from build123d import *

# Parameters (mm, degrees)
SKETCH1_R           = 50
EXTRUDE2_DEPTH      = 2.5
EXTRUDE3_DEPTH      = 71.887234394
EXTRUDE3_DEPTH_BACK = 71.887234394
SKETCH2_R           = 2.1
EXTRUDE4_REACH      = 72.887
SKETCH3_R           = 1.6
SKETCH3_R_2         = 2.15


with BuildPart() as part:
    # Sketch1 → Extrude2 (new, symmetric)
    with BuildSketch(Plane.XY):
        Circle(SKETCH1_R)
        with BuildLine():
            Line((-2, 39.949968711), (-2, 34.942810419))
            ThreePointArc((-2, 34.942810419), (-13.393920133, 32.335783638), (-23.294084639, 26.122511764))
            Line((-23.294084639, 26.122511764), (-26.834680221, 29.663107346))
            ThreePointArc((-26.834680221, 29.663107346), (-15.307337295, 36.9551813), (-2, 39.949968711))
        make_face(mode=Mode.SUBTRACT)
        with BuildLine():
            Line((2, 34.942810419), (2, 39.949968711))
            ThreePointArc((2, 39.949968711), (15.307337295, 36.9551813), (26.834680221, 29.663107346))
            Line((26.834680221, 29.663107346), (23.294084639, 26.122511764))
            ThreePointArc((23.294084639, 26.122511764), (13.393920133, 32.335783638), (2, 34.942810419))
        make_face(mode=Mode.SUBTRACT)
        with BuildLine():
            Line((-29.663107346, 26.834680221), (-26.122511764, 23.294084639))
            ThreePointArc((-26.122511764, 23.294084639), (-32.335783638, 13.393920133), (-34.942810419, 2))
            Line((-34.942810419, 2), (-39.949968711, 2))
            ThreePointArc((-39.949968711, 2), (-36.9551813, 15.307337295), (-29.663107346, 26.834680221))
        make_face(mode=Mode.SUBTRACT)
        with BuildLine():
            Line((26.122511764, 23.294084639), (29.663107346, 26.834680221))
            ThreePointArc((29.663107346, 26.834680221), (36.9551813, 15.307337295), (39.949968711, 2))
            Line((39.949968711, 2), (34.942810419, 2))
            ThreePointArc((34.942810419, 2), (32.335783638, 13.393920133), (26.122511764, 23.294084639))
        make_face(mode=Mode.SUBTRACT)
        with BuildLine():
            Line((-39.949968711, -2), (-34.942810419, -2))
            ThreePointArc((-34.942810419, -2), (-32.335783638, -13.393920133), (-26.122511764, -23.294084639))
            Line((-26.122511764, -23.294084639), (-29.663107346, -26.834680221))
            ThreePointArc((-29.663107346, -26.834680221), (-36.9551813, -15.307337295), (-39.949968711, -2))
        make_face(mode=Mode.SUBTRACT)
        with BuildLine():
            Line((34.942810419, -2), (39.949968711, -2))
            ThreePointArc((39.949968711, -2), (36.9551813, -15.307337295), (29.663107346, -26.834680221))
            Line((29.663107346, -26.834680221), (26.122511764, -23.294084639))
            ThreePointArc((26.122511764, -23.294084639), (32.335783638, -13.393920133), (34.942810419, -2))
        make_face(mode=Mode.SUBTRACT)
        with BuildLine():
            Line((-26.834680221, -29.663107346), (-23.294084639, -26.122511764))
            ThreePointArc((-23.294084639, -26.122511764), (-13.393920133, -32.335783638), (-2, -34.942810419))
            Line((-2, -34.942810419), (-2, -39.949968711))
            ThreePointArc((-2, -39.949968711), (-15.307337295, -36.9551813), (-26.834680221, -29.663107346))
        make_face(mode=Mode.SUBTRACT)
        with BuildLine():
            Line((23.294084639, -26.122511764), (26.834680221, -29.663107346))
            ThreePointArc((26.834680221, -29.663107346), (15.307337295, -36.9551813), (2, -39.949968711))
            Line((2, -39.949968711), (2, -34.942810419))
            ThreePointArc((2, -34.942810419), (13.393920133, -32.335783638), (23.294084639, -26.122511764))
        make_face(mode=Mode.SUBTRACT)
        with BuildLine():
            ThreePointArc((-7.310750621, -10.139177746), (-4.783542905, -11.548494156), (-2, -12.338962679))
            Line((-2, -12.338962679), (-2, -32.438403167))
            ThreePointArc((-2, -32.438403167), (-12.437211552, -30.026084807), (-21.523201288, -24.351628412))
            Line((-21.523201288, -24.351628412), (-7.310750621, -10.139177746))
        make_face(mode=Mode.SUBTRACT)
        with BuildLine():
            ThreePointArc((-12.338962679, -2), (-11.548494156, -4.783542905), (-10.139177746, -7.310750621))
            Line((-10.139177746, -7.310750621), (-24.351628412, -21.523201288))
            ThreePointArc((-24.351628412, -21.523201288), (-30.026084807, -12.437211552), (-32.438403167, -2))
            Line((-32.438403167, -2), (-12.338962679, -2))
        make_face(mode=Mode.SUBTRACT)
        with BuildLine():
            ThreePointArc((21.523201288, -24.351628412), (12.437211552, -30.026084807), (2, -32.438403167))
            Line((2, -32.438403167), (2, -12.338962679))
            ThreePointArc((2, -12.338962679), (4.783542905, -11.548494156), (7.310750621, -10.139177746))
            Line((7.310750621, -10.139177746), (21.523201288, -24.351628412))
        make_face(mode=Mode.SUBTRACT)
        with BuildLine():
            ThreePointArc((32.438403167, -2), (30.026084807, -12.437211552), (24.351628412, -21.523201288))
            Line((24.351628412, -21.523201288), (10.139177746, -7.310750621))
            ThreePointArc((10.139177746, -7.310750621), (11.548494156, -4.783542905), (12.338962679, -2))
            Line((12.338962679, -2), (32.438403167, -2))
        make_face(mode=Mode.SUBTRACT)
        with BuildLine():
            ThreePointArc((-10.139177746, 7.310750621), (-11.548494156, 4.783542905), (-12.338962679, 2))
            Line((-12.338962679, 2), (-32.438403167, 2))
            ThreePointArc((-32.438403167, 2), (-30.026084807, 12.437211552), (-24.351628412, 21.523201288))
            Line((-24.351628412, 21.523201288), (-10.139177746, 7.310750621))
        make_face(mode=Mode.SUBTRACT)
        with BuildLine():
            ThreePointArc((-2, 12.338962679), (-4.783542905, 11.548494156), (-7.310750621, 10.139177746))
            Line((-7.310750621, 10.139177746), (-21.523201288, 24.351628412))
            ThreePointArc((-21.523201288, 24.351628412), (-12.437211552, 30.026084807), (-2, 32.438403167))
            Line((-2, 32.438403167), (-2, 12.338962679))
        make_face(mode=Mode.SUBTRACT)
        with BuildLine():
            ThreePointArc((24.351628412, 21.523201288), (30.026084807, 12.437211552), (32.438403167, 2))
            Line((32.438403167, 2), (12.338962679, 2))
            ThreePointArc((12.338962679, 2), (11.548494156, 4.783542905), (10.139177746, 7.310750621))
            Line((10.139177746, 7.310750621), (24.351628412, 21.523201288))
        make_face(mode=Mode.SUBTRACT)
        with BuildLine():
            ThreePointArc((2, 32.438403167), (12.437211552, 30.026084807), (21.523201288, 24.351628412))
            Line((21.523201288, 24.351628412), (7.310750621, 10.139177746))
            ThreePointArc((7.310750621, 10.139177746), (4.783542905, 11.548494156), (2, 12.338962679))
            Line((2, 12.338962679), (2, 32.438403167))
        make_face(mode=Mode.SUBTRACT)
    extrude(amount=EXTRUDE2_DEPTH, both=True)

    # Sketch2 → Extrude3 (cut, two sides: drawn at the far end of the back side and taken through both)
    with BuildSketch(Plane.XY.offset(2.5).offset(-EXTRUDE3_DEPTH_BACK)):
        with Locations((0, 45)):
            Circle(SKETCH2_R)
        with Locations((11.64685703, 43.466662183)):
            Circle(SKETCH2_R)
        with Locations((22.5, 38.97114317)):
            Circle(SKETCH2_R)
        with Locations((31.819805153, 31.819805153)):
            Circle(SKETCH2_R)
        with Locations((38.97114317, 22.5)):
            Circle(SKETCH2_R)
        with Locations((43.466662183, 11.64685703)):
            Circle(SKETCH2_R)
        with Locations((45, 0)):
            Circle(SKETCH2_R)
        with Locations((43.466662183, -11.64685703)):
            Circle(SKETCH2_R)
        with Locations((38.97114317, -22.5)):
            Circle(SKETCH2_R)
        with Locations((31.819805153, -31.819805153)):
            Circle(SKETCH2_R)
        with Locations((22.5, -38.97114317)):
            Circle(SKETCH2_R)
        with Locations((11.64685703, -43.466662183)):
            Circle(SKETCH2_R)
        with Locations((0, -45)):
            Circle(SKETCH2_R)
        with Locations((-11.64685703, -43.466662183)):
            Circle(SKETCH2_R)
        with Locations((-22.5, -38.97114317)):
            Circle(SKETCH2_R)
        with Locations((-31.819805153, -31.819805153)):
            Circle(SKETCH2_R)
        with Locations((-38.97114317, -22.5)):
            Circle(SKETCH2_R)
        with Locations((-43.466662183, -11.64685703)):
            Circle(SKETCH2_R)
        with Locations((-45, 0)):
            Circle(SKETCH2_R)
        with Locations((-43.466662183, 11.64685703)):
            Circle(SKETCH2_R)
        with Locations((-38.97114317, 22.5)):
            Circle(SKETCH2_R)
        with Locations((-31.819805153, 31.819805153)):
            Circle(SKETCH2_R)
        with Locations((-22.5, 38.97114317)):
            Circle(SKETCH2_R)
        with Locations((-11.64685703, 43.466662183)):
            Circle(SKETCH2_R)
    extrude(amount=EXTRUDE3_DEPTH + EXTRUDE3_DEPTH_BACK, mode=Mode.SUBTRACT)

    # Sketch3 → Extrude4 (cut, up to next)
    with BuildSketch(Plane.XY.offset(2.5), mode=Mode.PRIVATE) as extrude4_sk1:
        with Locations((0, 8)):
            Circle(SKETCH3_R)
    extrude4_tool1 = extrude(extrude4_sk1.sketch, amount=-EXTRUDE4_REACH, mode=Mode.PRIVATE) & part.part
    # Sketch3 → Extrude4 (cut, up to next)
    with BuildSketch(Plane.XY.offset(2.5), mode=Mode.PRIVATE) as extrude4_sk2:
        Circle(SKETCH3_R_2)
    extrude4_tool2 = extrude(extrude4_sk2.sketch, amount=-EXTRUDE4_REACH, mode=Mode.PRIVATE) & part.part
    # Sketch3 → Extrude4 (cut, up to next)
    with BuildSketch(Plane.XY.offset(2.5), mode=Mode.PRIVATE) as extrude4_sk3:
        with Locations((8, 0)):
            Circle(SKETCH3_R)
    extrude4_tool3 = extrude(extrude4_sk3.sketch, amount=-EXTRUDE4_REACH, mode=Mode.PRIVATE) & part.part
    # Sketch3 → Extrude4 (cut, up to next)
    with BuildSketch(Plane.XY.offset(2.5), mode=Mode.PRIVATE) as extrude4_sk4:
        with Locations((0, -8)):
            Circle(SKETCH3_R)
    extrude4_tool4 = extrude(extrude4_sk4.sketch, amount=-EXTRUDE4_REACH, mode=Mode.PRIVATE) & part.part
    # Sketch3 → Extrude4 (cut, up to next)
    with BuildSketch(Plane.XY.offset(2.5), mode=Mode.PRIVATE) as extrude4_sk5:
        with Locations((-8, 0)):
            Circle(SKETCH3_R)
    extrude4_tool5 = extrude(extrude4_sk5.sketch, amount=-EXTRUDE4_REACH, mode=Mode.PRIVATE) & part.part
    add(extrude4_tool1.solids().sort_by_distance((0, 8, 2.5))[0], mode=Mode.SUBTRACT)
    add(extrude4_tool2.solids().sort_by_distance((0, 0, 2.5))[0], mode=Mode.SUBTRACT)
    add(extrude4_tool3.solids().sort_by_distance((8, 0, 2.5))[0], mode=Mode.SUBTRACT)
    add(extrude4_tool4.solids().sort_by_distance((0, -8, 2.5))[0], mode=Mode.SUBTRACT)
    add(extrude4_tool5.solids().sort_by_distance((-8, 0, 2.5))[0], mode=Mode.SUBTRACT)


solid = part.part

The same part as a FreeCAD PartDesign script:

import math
import FreeCAD as App
import Part
import Sketcher

V = App.Vector

doc = App.newDocument("Part")
body = doc.addObject("PartDesign::Body", "Body")

# Sketch on XY plane
sketch1 = body.newObject("Sketcher::SketchObject", "Sketch")
sketch1.AttachmentSupport = (doc.getObject("XY_Plane"), [""])
sketch1.MapMode = "FlatFace"
sketch1.addGeometry([
    Part.Circle(V(0, 0, 0), V(0, 0, 1), 50),  # 0
    Part.ArcOfCircle(Part.Circle(V(0, 0, 0), V(0, 0, 1), 40), math.radians(-132), math.radians(-93)),  # 1
    Part.LineSegment(V(-27, -30, 0), V(-23, -26, 0)),  # 2
    Part.ArcOfCircle(Part.Circle(V(0, 0, 0), V(0, 0, 1), 35), math.radians(-132), math.radians(-93)),  # 3
    Part.LineSegment(V(-2, -35, 0), V(-2, -40, 0)),  # 4
    Part.LineSegment(V(-22, -24, 0), V(-7, -10, 0)),  # 5
    Part.ArcOfCircle(Part.Circle(V(0, 0, 0), V(0, 0, 1), 13), math.radians(-126), math.radians(-99)),  # 6
    Part.LineSegment(V(-2, -12, 0), V(-2, -32, 0)),  # 7
    Part.ArcOfCircle(Part.Circle(V(0, 0, 0), V(0, 0, 1), 32), math.radians(-131), math.radians(-94)),  # 8
    Part.ArcOfCircle(Part.Circle(V(0, 0, 0), V(0, 0, 1), 40), math.radians(-177), math.radians(-138)),  # 9
    Part.LineSegment(V(-40, -2, 0), V(-35, -2, 0)),  # 10
    Part.ArcOfCircle(Part.Circle(V(0, 0, 0), V(0, 0, 1), 35), math.radians(-177), math.radians(-138)),  # 11
    Part.LineSegment(V(-26, -23, 0), V(-30, -27, 0)),  # 12
    Part.LineSegment(V(-32, -2, 0), V(-12, -2, 0)),  # 13
    Part.ArcOfCircle(Part.Circle(V(0, 0, 0), V(0, 0, 1), 13), math.radians(-171), math.radians(-144)),  # 14
    Part.LineSegment(V(-10, -7, 0), V(-24, -22, 0)),  # 15
    Part.ArcOfCircle(Part.Circle(V(0, 0, 0), V(0, 0, 1), 32), math.radians(-176), math.radians(-139)),  # 16
    Part.ArcOfCircle(Part.Circle(V(0, 0, 0), V(0, 0, 1), 35), math.radians(-87), math.radians(-48)),  # 17
    Part.LineSegment(V(23, -26, 0), V(27, -30, 0)),  # 18
    Part.ArcOfCircle(Part.Circle(V(0, 0, 0), V(0, 0, 1), 40), math.radians(-87), math.radians(-48)),  # 19
    Part.LineSegment(V(2, -40, 0), V(2, -35, 0)),  # 20
    Part.LineSegment(V(7, -10, 0), V(22, -24, 0)),  # 21
    Part.ArcOfCircle(Part.Circle(V(0, 0, 0), V(0, 0, 1), 32), math.radians(-86), math.radians(-49)),  # 22
    Part.LineSegment(V(2, -32, 0), V(2, -12, 0)),  # 23
    Part.ArcOfCircle(Part.Circle(V(0, 0, 0), V(0, 0, 1), 13), math.radians(-81), math.radians(-54)),  # 24
    Part.LineSegment(V(12, -2, 0), V(32, -2, 0)),  # 25
    Part.ArcOfCircle(Part.Circle(V(0, 0, 0), V(0, 0, 1), 32), math.radians(-41), math.radians(-4)),  # 26
    Part.LineSegment(V(24, -22, 0), V(10, -7, 0)),  # 27
    Part.ArcOfCircle(Part.Circle(V(0, 0, 0), V(0, 0, 1), 13), math.radians(-36), math.radians(-9)),  # 28
    Part.ArcOfCircle(Part.Circle(V(0, 0, 0), V(0, 0, 1), 35), math.radians(-42), math.radians(-3)),  # 29
    Part.LineSegment(V(35, -2, 0), V(40, -2, 0)),  # 30
    Part.ArcOfCircle(Part.Circle(V(0, 0, 0), V(0, 0, 1), 40), math.radians(-42), math.radians(-3)),  # 31
    Part.LineSegment(V(30, -27, 0), V(26, -23, 0)),  # 32
    Part.ArcOfCircle(Part.Circle(V(0, 0, 0), V(0, 0, 1), 40), math.radians(138), math.radians(177)),  # 33
    Part.LineSegment(V(-30, 27, 0), V(-26, 23, 0)),  # 34
    Part.ArcOfCircle(Part.Circle(V(0, 0, 0), V(0, 0, 1), 35), math.radians(138), math.radians(177)),  # 35
    Part.LineSegment(V(-35, 2, 0), V(-40, 2, 0)),  # 36
    Part.LineSegment(V(-24, 22, 0), V(-10, 7, 0)),  # 37
    Part.ArcOfCircle(Part.Circle(V(0, 0, 0), V(0, 0, 1), 13), math.radians(144), math.radians(171)),  # 38
    Part.LineSegment(V(-12, 2, 0), V(-32, 2, 0)),  # 39
    Part.ArcOfCircle(Part.Circle(V(0, 0, 0), V(0, 0, 1), 32), math.radians(139), math.radians(176)),  # 40
    Part.LineSegment(V(-2, 32, 0), V(-2, 12, 0)),  # 41
    Part.ArcOfCircle(Part.Circle(V(0, 0, 0), V(0, 0, 1), 13), math.radians(99), math.radians(126)),  # 42
    Part.LineSegment(V(-7, 10, 0), V(-22, 24, 0)),  # 43
    Part.ArcOfCircle(Part.Circle(V(0, 0, 0), V(0, 0, 1), 32), math.radians(94), math.radians(131)),  # 44
    Part.ArcOfCircle(Part.Circle(V(0, 0, 0), V(0, 0, 1), 40), math.radians(93), math.radians(132)),  # 45
    Part.LineSegment(V(-2, 40, 0), V(-2, 35, 0)),  # 46
    Part.ArcOfCircle(Part.Circle(V(0, 0, 0), V(0, 0, 1), 35), math.radians(93), math.radians(132)),  # 47
    Part.LineSegment(V(-23, 26, 0), V(-27, 30, 0)),  # 48
    Part.LineSegment(V(10, 7, 0), V(24, 22, 0)),  # 49
    Part.ArcOfCircle(Part.Circle(V(0, 0, 0), V(0, 0, 1), 32), math.radians(4), math.radians(41)),  # 50
    Part.LineSegment(V(32, 2, 0), V(12, 2, 0)),  # 51
    Part.ArcOfCircle(Part.Circle(V(0, 0, 0), V(0, 0, 1), 13), math.radians(9), math.radians(36)),  # 52
    Part.ArcOfCircle(Part.Circle(V(0, 0, 0), V(0, 0, 1), 35), math.radians(3), math.radians(42)),  # 53
    Part.LineSegment(V(26, 23, 0), V(30, 27, 0)),  # 54
    Part.ArcOfCircle(Part.Circle(V(0, 0, 0), V(0, 0, 1), 40), math.radians(3), math.radians(42)),  # 55
    Part.LineSegment(V(40, 2, 0), V(35, 2, 0)),  # 56
    Part.LineSegment(V(2, 12, 0), V(2, 32, 0)),  # 57
    Part.ArcOfCircle(Part.Circle(V(0, 0, 0), V(0, 0, 1), 32), math.radians(49), math.radians(86)),  # 58
    Part.LineSegment(V(22, 24, 0), V(7, 10, 0)),  # 59
    Part.ArcOfCircle(Part.Circle(V(0, 0, 0), V(0, 0, 1), 13), math.radians(54), math.radians(81)),  # 60
    Part.ArcOfCircle(Part.Circle(V(0, 0, 0), V(0, 0, 1), 35), math.radians(48), math.radians(87)),  # 61
    Part.LineSegment(V(2, 35, 0), V(2, 40, 0)),  # 62
    Part.ArcOfCircle(Part.Circle(V(0, 0, 0), V(0, 0, 1), 40), math.radians(48), math.radians(87)),  # 63
    Part.LineSegment(V(27, 30, 0), V(23, 26, 0)),  # 64
], False)
sketch1.addConstraint([
    Sketcher.Constraint("Coincident", 1, 1, 2, 1),
    Sketcher.Constraint("Coincident", 2, 2, 3, 1),
    Sketcher.Constraint("Coincident", 3, 2, 4, 1),
    Sketcher.Constraint("Coincident", 4, 2, 1, 2),
    Sketcher.Constraint("Coincident", 5, 2, 6, 1),
    Sketcher.Constraint("Coincident", 6, 2, 7, 1),
    Sketcher.Constraint("Coincident", 7, 2, 8, 2),
    Sketcher.Constraint("Coincident", 8, 1, 5, 1),
    Sketcher.Constraint("Coincident", 9, 1, 10, 1),
    Sketcher.Constraint("Coincident", 10, 2, 11, 1),
    Sketcher.Constraint("Coincident", 11, 2, 12, 1),
    Sketcher.Constraint("Coincident", 12, 2, 9, 2),
    Sketcher.Constraint("Coincident", 13, 2, 14, 1),
    Sketcher.Constraint("Coincident", 14, 2, 15, 1),
    Sketcher.Constraint("Coincident", 15, 2, 16, 2),
    Sketcher.Constraint("Coincident", 16, 1, 13, 1),
    Sketcher.Constraint("Coincident", 17, 2, 18, 1),
    Sketcher.Constraint("Coincident", 18, 2, 19, 2),
    Sketcher.Constraint("Coincident", 19, 1, 20, 1),
    Sketcher.Constraint("Coincident", 20, 2, 17, 1),
    Sketcher.Constraint("Coincident", 21, 2, 22, 2),
    Sketcher.Constraint("Coincident", 22, 1, 23, 1),
    Sketcher.Constraint("Coincident", 23, 2, 24, 1),
    Sketcher.Constraint("Coincident", 24, 2, 21, 1),
    Sketcher.Constraint("Coincident", 25, 2, 26, 2),
    Sketcher.Constraint("Coincident", 26, 1, 27, 1),
    Sketcher.Constraint("Coincident", 27, 2, 28, 1),
    Sketcher.Constraint("Coincident", 28, 2, 25, 1),
    Sketcher.Constraint("Coincident", 29, 2, 30, 1),
    Sketcher.Constraint("Coincident", 30, 2, 31, 2),
    Sketcher.Constraint("Coincident", 31, 1, 32, 1),
    Sketcher.Constraint("Coincident", 32, 2, 29, 1),
    Sketcher.Constraint("Coincident", 33, 1, 34, 1),
    Sketcher.Constraint("Coincident", 34, 2, 35, 1),
    Sketcher.Constraint("Coincident", 35, 2, 36, 1),
    Sketcher.Constraint("Coincident", 36, 2, 33, 2),
    Sketcher.Constraint("Coincident", 37, 2, 38, 1),
    Sketcher.Constraint("Coincident", 38, 2, 39, 1),
    Sketcher.Constraint("Coincident", 39, 2, 40, 2),
    Sketcher.Constraint("Coincident", 40, 1, 37, 1),
    Sketcher.Constraint("Coincident", 41, 2, 42, 1),
    Sketcher.Constraint("Coincident", 42, 2, 43, 1),
    Sketcher.Constraint("Coincident", 43, 2, 44, 2),
    Sketcher.Constraint("Coincident", 44, 1, 41, 1),
    Sketcher.Constraint("Coincident", 45, 1, 46, 1),
    Sketcher.Constraint("Coincident", 46, 2, 47, 1),
    Sketcher.Constraint("Coincident", 47, 2, 48, 1),
    Sketcher.Constraint("Coincident", 48, 2, 45, 2),
    Sketcher.Constraint("Coincident", 49, 2, 50, 2),
    Sketcher.Constraint("Coincident", 50, 1, 51, 1),
    Sketcher.Constraint("Coincident", 51, 2, 52, 1),
    Sketcher.Constraint("Coincident", 52, 2, 49, 1),
    Sketcher.Constraint("Coincident", 53, 2, 54, 1),
    Sketcher.Constraint("Coincident", 54, 2, 55, 2),
    Sketcher.Constraint("Coincident", 55, 1, 56, 1),
    Sketcher.Constraint("Coincident", 56, 2, 53, 1),
    Sketcher.Constraint("Coincident", 57, 2, 58, 2),
    Sketcher.Constraint("Coincident", 58, 1, 59, 1),
    Sketcher.Constraint("Coincident", 59, 2, 60, 1),
    Sketcher.Constraint("Coincident", 60, 2, 57, 1),
    Sketcher.Constraint("Coincident", 61, 2, 62, 1),
    Sketcher.Constraint("Coincident", 62, 2, 63, 2),
    Sketcher.Constraint("Coincident", 63, 1, 64, 1),
    Sketcher.Constraint("Coincident", 64, 2, 61, 1),
    Sketcher.Constraint("Vertical", 4),
    Sketcher.Constraint("Vertical", 7),
    Sketcher.Constraint("Horizontal", 10),
    Sketcher.Constraint("Horizontal", 13),
    Sketcher.Constraint("Vertical", 20),
    Sketcher.Constraint("Vertical", 23),
    Sketcher.Constraint("Horizontal", 25),
    Sketcher.Constraint("Horizontal", 30),
    Sketcher.Constraint("Horizontal", 36),
    Sketcher.Constraint("Horizontal", 39),
    Sketcher.Constraint("Vertical", 41),
    Sketcher.Constraint("Vertical", 46),
    Sketcher.Constraint("Horizontal", 51),
    Sketcher.Constraint("Horizontal", 56),
    Sketcher.Constraint("Vertical", 57),
    Sketcher.Constraint("Vertical", 62),
    Sketcher.Constraint("Coincident", 0, 3, -1, 1),
    Sketcher.Constraint("Coincident", 1, 3, -1, 1),
    Sketcher.Constraint("Coincident", 3, 3, -1, 1),
    Sketcher.Constraint("Coincident", 6, 3, -1, 1),
    Sketcher.Constraint("Coincident", 8, 3, -1, 1),
    Sketcher.Constraint("Coincident", 9, 3, -1, 1),
    Sketcher.Constraint("Coincident", 11, 3, -1, 1),
    Sketcher.Constraint("Coincident", 14, 3, -1, 1),
    Sketcher.Constraint("Coincident", 16, 3, -1, 1),
    Sketcher.Constraint("Coincident", 17, 3, -1, 1),
    Sketcher.Constraint("Coincident", 19, 3, -1, 1),
    Sketcher.Constraint("Coincident", 22, 3, -1, 1),
    Sketcher.Constraint("Coincident", 24, 3, -1, 1),
    Sketcher.Constraint("Coincident", 26, 3, -1, 1),
    Sketcher.Constraint("Coincident", 28, 3, -1, 1),
    Sketcher.Constraint("Coincident", 29, 3, -1, 1),
    Sketcher.Constraint("Coincident", 31, 3, -1, 1),
    Sketcher.Constraint("Coincident", 33, 3, -1, 1),
    Sketcher.Constraint("Coincident", 35, 3, -1, 1),
    Sketcher.Constraint("Coincident", 38, 3, -1, 1),
    Sketcher.Constraint("Coincident", 40, 3, -1, 1),
    Sketcher.Constraint("Coincident", 42, 3, -1, 1),
    Sketcher.Constraint("Coincident", 44, 3, -1, 1),
    Sketcher.Constraint("Coincident", 45, 3, -1, 1),
    Sketcher.Constraint("Coincident", 47, 3, -1, 1),
    Sketcher.Constraint("Coincident", 50, 3, -1, 1),
    Sketcher.Constraint("Coincident", 52, 3, -1, 1),
    Sketcher.Constraint("Coincident", 53, 3, -1, 1),
    Sketcher.Constraint("Coincident", 55, 3, -1, 1),
    Sketcher.Constraint("Coincident", 58, 3, -1, 1),
    Sketcher.Constraint("Coincident", 60, 3, -1, 1),
    Sketcher.Constraint("Coincident", 61, 3, -1, 1),
    Sketcher.Constraint("Coincident", 63, 3, -1, 1),
    Sketcher.Constraint("Equal", 1, 9),
    Sketcher.Constraint("Equal", 3, 11),
    Sketcher.Constraint("Equal", 6, 14),
    Sketcher.Constraint("Equal", 8, 16),
    Sketcher.Constraint("Equal", 11, 17),
    Sketcher.Constraint("Equal", 9, 19),
    Sketcher.Constraint("Equal", 16, 22),
    Sketcher.Constraint("Equal", 14, 24),
    Sketcher.Constraint("Equal", 22, 26),
    Sketcher.Constraint("Equal", 24, 28),
    Sketcher.Constraint("Equal", 17, 29),
    Sketcher.Constraint("Equal", 19, 31),
    Sketcher.Constraint("Equal", 31, 33),
    Sketcher.Constraint("Equal", 29, 35),
    Sketcher.Constraint("Equal", 28, 38),
    Sketcher.Constraint("Equal", 26, 40),
    Sketcher.Constraint("Equal", 38, 42),
    Sketcher.Constraint("Equal", 40, 44),
    Sketcher.Constraint("Equal", 33, 45),
    Sketcher.Constraint("Equal", 35, 47),
    Sketcher.Constraint("Equal", 44, 50),
    Sketcher.Constraint("Equal", 42, 52),
    Sketcher.Constraint("Equal", 47, 53),
    Sketcher.Constraint("Equal", 45, 55),
    Sketcher.Constraint("Equal", 50, 58),
    Sketcher.Constraint("Equal", 52, 60),
    Sketcher.Constraint("Equal", 53, 61),
    Sketcher.Constraint("Equal", 55, 63),
    Sketcher.Constraint("Parallel", 2, 5),
    Sketcher.Constraint("Parallel", 5, 12),
    Sketcher.Constraint("Parallel", 12, 15),
    Sketcher.Constraint("Perpendicular", 15, 18),
    Sketcher.Constraint("Parallel", 18, 21),
    Sketcher.Constraint("Parallel", 21, 27),
    Sketcher.Constraint("Parallel", 27, 32),
    Sketcher.Constraint("Parallel", 32, 34),
    Sketcher.Constraint("Parallel", 34, 37),
    Sketcher.Constraint("Parallel", 37, 43),
    Sketcher.Constraint("Parallel", 43, 48),
    Sketcher.Constraint("Perpendicular", 48, 49),
    Sketcher.Constraint("Parallel", 49, 54),
    Sketcher.Constraint("Parallel", 54, 59),
    Sketcher.Constraint("Parallel", 59, 64),
    Sketcher.Constraint("Horizontal", 10, 2, 13, 2),
    Sketcher.Constraint("Horizontal", 2, 2, 17, 2),
    Sketcher.Constraint("Horizontal", 1, 1, 18, 2),
    Sketcher.Constraint("Horizontal", 4, 2, 19, 1),
    Sketcher.Constraint("Horizontal", 8, 1, 21, 2),
    Sketcher.Constraint("Horizontal", 7, 2, 22, 1),
    Sketcher.Constraint("Horizontal", 16, 1, 25, 2),
    Sketcher.Constraint("Horizontal", 15, 2, 26, 1),
    Sketcher.Constraint("Horizontal", 28, 2, 29, 2),
    Sketcher.Constraint("Horizontal", 12, 2, 31, 1),
    Sketcher.Constraint("Horizontal", 36, 2, 38, 2),
    Sketcher.Constraint("Horizontal", 40, 1, 49, 2),
    Sketcher.Constraint("Horizontal", 39, 2, 50, 1),
    Sketcher.Constraint("Horizontal", 34, 2, 53, 2),
    Sketcher.Constraint("Horizontal", 51, 2, 55, 1),
    Sketcher.Constraint("Horizontal", 44, 1, 57, 2),
    Sketcher.Constraint("Horizontal", 43, 2, 58, 1),
    Sketcher.Constraint("Horizontal", 46, 2, 61, 2),
    Sketcher.Constraint("Horizontal", 48, 2, 63, 1),
    Sketcher.Constraint("Vertical", 4, 2, 6, 2),
    Sketcher.Constraint("Vertical", 12, 2, 33, 1),
    Sketcher.Constraint("Vertical", 10, 2, 35, 2),
    Sketcher.Constraint("Vertical", 14, 2, 37, 2),
    Sketcher.Constraint("Vertical", 7, 2, 41, 2),
    Sketcher.Constraint("Vertical", 5, 2, 42, 2),
    Sketcher.Constraint("Vertical", 44, 1, 45, 1),
    Sketcher.Constraint("Vertical", 2, 2, 47, 2),
    Sketcher.Constraint("Equal", 51, 7),
    Sketcher.Constraint("Equal", 5, 15),
    Sketcher.Constraint("Diameter", 0, 100.0),
    Sketcher.Constraint("Radius", 1, 40.0),
    Sketcher.Constraint("Radius", 3, 35.0),
    Sketcher.Constraint("Radius", 6, 12.5),
    Sketcher.Constraint("Radius", 8, 32.5),
    Sketcher.Constraint("DistanceX", 3, 2, -1, 1, 2.0),
    Sketcher.Constraint("DistanceX", 8, 1, -1, 1, 21.523201),
    Sketcher.Constraint("DistanceX", 1, 1, -1, 1, 26.83468),
    Sketcher.Constraint("DistanceX", 11, 2, -1, 1, 26.122512),
])
pad1 = body.newObject("PartDesign::Pad", "Pad")
pad1.Profile = sketch1
pad1.Length = 5
pad1.Midplane = True

# Sketch on XY plane
sketch2 = body.newObject("Sketcher::SketchObject", "Sketch001")
sketch2.AttachmentSupport = (doc.getObject("XY_Plane"), [""])
sketch2.MapMode = "FlatFace"
sketch2.AttachmentOffset = App.Placement(V(0, 0, 2.5), App.Rotation())
sketch2.addGeometry([
    Part.Circle(V(0, 45, 0), V(0, 0, 1), 2.1),  # 0
    Part.Circle(V(11.6, 43.5, 0), V(0, 0, 1), 2.1),  # 1
    Part.Circle(V(22.5, 39, 0), V(0, 0, 1), 2.1),  # 2
    Part.Circle(V(31.8, 31.8, 0), V(0, 0, 1), 2.1),  # 3
    Part.Circle(V(39, 22.5, 0), V(0, 0, 1), 2.1),  # 4
    Part.Circle(V(43.5, 11.6, 0), V(0, 0, 1), 2.1),  # 5
    Part.Circle(V(45, 0, 0), V(0, 0, 1), 2.1),  # 6
    Part.Circle(V(43.5, -11.6, 0), V(0, 0, 1), 2.1),  # 7
    Part.Circle(V(39, -22.5, 0), V(0, 0, 1), 2.1),  # 8
    Part.Circle(V(31.8, -31.8, 0), V(0, 0, 1), 2.1),  # 9
    Part.Circle(V(22.5, -39, 0), V(0, 0, 1), 2.1),  # 10
    Part.Circle(V(11.6, -43.5, 0), V(0, 0, 1), 2.1),  # 11
    Part.Circle(V(0, -45, 0), V(0, 0, 1), 2.1),  # 12
    Part.Circle(V(-11.6, -43.5, 0), V(0, 0, 1), 2.1),  # 13
    Part.Circle(V(-22.5, -39, 0), V(0, 0, 1), 2.1),  # 14
    Part.Circle(V(-31.8, -31.8, 0), V(0, 0, 1), 2.1),  # 15
    Part.Circle(V(-39, -22.5, 0), V(0, 0, 1), 2.1),  # 16
    Part.Circle(V(-43.5, -11.6, 0), V(0, 0, 1), 2.1),  # 17
    Part.Circle(V(-45, 0, 0), V(0, 0, 1), 2.1),  # 18
    Part.Circle(V(-43.5, 11.6, 0), V(0, 0, 1), 2.1),  # 19
    Part.Circle(V(-39, 22.5, 0), V(0, 0, 1), 2.1),  # 20
    Part.Circle(V(-31.8, 31.8, 0), V(0, 0, 1), 2.1),  # 21
    Part.Circle(V(-22.5, 39, 0), V(0, 0, 1), 2.1),  # 22
    Part.Circle(V(-11.6, 43.5, 0), V(0, 0, 1), 2.1),  # 23
], False)
sketch2.addConstraint([
    Sketcher.Constraint("Equal", 0, 1),
    Sketcher.Constraint("Equal", 1, 2),
    Sketcher.Constraint("Equal", 2, 3),
    Sketcher.Constraint("Equal", 3, 4),
    Sketcher.Constraint("Equal", 4, 5),
    Sketcher.Constraint("Equal", 5, 6),
    Sketcher.Constraint("Equal", 6, 7),
    Sketcher.Constraint("Equal", 7, 8),
    Sketcher.Constraint("Equal", 8, 9),
    Sketcher.Constraint("Equal", 9, 10),
    Sketcher.Constraint("Equal", 10, 11),
    Sketcher.Constraint("Equal", 11, 12),
    Sketcher.Constraint("Equal", 12, 13),
    Sketcher.Constraint("Equal", 13, 14),
    Sketcher.Constraint("Equal", 14, 15),
    Sketcher.Constraint("Equal", 15, 16),
    Sketcher.Constraint("Equal", 16, 17),
    Sketcher.Constraint("Equal", 17, 18),
    Sketcher.Constraint("Equal", 18, 19),
    Sketcher.Constraint("Equal", 19, 20),
    Sketcher.Constraint("Equal", 20, 21),
    Sketcher.Constraint("Equal", 21, 22),
    Sketcher.Constraint("Equal", 22, 23),
    Sketcher.Constraint("Symmetric", 0, 3, 12, 3, -1, 1),
    Sketcher.Constraint("Symmetric", 1, 3, 13, 3, -1, 1),
    Sketcher.Constraint("Symmetric", 2, 3, 14, 3, -1, 1),
    Sketcher.Constraint("Symmetric", 3, 3, 15, 3, -1, 1),
    Sketcher.Constraint("Symmetric", 4, 3, 16, 3, -1, 1),
    Sketcher.Constraint("Symmetric", 5, 3, 17, 3, -1, 1),
    Sketcher.Constraint("Symmetric", 6, 3, 18, 3, -1, 1),
    Sketcher.Constraint("Symmetric", 7, 3, 19, 3, -1, 1),
    Sketcher.Constraint("Symmetric", 8, 3, 20, 3, -1, 1),
    Sketcher.Constraint("Symmetric", 9, 3, 21, 3, -1, 1),
    Sketcher.Constraint("Symmetric", 10, 3, 22, 3, -1, 1),
    Sketcher.Constraint("Symmetric", 11, 3, 23, 3, -1, 1),
    Sketcher.Constraint("Symmetric", 11, 3, 13, 3, -2),
    Sketcher.Constraint("Symmetric", 10, 3, 14, 3, -2),
    Sketcher.Constraint("Symmetric", 9, 3, 15, 3, -2),
    Sketcher.Constraint("Symmetric", 8, 3, 16, 3, -2),
    Sketcher.Constraint("Symmetric", 7, 3, 17, 3, -2),
    Sketcher.Constraint("PointOnObject", 0, 3, -2),
    Sketcher.Constraint("PointOnObject", 6, 3, -1),
    Sketcher.Constraint("Diameter", 0, 4.2),
    Sketcher.Constraint("DistanceY", -1, 1, 0, 3, 45.0),
    Sketcher.Constraint("DistanceX", -1, 1, 6, 3, 45.0),
    Sketcher.Constraint("DistanceY", 8, 3, 4, 3, 45.0),
    Sketcher.Constraint("DistanceX", 14, 3, 10, 3, 45.0),
    Sketcher.Constraint("DistanceY", 7, 3, 2, 3, 50.618),
    Sketcher.Constraint("DistanceX", 13, 3, 8, 3, 50.618),
    Sketcher.Constraint("DistanceY", 2, 3, 1, 3, 4.495519),
    Sketcher.Constraint("DistanceY", 3, 3, 2, 3, 7.151338),
    Sketcher.Constraint("DistanceX", 1, 3, 3, 3, 20.172948),
    Sketcher.Constraint("DistanceX", 3, 3, 4, 3, 7.151338),
    Sketcher.Constraint("DistanceX", 4, 3, 5, 3, 4.495519),
    Sketcher.Constraint("DistanceY", 5, 3, 3, 3, 20.172948),
])
pocket1 = body.newObject("PartDesign::Pocket", "Pocket")
pocket1.Profile = sketch2
pocket1.Type = "ThroughAll"
pocket1.Midplane = True

# Sketch on XY plane
sketch3 = body.newObject("Sketcher::SketchObject", "Sketch002")
sketch3.AttachmentSupport = (doc.getObject("XY_Plane"), [""])
sketch3.MapMode = "FlatFace"
sketch3.AttachmentOffset = App.Placement(V(0, 0, 2.5), App.Rotation())
sketch3.addGeometry(Part.Circle(V(0, 8, 0), V(0, 0, 1), 1.6), False)
sketch3.addConstraint([
    Sketcher.Constraint("PointOnObject", 0, 3, -2),
    Sketcher.Constraint("Diameter", 0, 3.2),
    Sketcher.Constraint("DistanceY", -1, 1, 0, 3, 8.0),
])
pocket2 = body.newObject("PartDesign::Pocket", "Pocket001")
pocket2.Profile = sketch3
pocket2.Type = "UpToFirst"

# Sketch on XY plane
sketch4 = body.newObject("Sketcher::SketchObject", "Sketch003")
sketch4.AttachmentSupport = (doc.getObject("XY_Plane"), [""])
sketch4.MapMode = "FlatFace"
sketch4.AttachmentOffset = App.Placement(V(0, 0, 2.5), App.Rotation())
sketch4.addGeometry(Part.Circle(V(0, 0, 0), V(0, 0, 1), 2.1), False)
sketch4.addConstraint([
    Sketcher.Constraint("Coincident", 0, 3, -1, 1),
    Sketcher.Constraint("Diameter", 0, 4.3),
])
pocket3 = body.newObject("PartDesign::Pocket", "Pocket002")
pocket3.Profile = sketch4
pocket3.Type = "UpToFirst"

# Sketch on XY plane
sketch5 = body.newObject("Sketcher::SketchObject", "Sketch004")
sketch5.AttachmentSupport = (doc.getObject("XY_Plane"), [""])
sketch5.MapMode = "FlatFace"
sketch5.AttachmentOffset = App.Placement(V(0, 0, 2.5), App.Rotation())
sketch5.addGeometry(Part.Circle(V(8, 0, 0), V(0, 0, 1), 1.6), False)
sketch5.addConstraint([
    Sketcher.Constraint("PointOnObject", 0, 3, -1),
    Sketcher.Constraint("Diameter", 0, 3.2),
    Sketcher.Constraint("DistanceX", -1, 1, 0, 3, 8.0),
])
pocket4 = body.newObject("PartDesign::Pocket", "Pocket003")
pocket4.Profile = sketch5
pocket4.Type = "UpToFirst"

# Sketch on XY plane
sketch6 = body.newObject("Sketcher::SketchObject", "Sketch005")
sketch6.AttachmentSupport = (doc.getObject("XY_Plane"), [""])
sketch6.MapMode = "FlatFace"
sketch6.AttachmentOffset = App.Placement(V(0, 0, 2.5), App.Rotation())
sketch6.addGeometry(Part.Circle(V(0, -8, 0), V(0, 0, 1), 1.6), False)
sketch6.addConstraint([
    Sketcher.Constraint("PointOnObject", 0, 3, -2),
    Sketcher.Constraint("Diameter", 0, 3.2),
    Sketcher.Constraint("DistanceY", 0, 3, -1, 1, 8.0),
])
pocket5 = body.newObject("PartDesign::Pocket", "Pocket004")
pocket5.Profile = sketch6
pocket5.Type = "UpToFirst"

# Sketch on XY plane
sketch7 = body.newObject("Sketcher::SketchObject", "Sketch006")
sketch7.AttachmentSupport = (doc.getObject("XY_Plane"), [""])
sketch7.MapMode = "FlatFace"
sketch7.AttachmentOffset = App.Placement(V(0, 0, 2.5), App.Rotation())
sketch7.addGeometry(Part.Circle(V(-8, 0, 0), V(0, 0, 1), 1.6), False)
sketch7.addConstraint([
    Sketcher.Constraint("PointOnObject", 0, 3, -1),
    Sketcher.Constraint("Diameter", 0, 3.2),
    Sketcher.Constraint("DistanceX", 0, 3, -1, 1, 8.0),
])
pocket6 = body.newObject("PartDesign::Pocket", "Pocket005")
pocket6.Profile = sketch7
pocket6.Type = "UpToFirst"

doc.recompute()
